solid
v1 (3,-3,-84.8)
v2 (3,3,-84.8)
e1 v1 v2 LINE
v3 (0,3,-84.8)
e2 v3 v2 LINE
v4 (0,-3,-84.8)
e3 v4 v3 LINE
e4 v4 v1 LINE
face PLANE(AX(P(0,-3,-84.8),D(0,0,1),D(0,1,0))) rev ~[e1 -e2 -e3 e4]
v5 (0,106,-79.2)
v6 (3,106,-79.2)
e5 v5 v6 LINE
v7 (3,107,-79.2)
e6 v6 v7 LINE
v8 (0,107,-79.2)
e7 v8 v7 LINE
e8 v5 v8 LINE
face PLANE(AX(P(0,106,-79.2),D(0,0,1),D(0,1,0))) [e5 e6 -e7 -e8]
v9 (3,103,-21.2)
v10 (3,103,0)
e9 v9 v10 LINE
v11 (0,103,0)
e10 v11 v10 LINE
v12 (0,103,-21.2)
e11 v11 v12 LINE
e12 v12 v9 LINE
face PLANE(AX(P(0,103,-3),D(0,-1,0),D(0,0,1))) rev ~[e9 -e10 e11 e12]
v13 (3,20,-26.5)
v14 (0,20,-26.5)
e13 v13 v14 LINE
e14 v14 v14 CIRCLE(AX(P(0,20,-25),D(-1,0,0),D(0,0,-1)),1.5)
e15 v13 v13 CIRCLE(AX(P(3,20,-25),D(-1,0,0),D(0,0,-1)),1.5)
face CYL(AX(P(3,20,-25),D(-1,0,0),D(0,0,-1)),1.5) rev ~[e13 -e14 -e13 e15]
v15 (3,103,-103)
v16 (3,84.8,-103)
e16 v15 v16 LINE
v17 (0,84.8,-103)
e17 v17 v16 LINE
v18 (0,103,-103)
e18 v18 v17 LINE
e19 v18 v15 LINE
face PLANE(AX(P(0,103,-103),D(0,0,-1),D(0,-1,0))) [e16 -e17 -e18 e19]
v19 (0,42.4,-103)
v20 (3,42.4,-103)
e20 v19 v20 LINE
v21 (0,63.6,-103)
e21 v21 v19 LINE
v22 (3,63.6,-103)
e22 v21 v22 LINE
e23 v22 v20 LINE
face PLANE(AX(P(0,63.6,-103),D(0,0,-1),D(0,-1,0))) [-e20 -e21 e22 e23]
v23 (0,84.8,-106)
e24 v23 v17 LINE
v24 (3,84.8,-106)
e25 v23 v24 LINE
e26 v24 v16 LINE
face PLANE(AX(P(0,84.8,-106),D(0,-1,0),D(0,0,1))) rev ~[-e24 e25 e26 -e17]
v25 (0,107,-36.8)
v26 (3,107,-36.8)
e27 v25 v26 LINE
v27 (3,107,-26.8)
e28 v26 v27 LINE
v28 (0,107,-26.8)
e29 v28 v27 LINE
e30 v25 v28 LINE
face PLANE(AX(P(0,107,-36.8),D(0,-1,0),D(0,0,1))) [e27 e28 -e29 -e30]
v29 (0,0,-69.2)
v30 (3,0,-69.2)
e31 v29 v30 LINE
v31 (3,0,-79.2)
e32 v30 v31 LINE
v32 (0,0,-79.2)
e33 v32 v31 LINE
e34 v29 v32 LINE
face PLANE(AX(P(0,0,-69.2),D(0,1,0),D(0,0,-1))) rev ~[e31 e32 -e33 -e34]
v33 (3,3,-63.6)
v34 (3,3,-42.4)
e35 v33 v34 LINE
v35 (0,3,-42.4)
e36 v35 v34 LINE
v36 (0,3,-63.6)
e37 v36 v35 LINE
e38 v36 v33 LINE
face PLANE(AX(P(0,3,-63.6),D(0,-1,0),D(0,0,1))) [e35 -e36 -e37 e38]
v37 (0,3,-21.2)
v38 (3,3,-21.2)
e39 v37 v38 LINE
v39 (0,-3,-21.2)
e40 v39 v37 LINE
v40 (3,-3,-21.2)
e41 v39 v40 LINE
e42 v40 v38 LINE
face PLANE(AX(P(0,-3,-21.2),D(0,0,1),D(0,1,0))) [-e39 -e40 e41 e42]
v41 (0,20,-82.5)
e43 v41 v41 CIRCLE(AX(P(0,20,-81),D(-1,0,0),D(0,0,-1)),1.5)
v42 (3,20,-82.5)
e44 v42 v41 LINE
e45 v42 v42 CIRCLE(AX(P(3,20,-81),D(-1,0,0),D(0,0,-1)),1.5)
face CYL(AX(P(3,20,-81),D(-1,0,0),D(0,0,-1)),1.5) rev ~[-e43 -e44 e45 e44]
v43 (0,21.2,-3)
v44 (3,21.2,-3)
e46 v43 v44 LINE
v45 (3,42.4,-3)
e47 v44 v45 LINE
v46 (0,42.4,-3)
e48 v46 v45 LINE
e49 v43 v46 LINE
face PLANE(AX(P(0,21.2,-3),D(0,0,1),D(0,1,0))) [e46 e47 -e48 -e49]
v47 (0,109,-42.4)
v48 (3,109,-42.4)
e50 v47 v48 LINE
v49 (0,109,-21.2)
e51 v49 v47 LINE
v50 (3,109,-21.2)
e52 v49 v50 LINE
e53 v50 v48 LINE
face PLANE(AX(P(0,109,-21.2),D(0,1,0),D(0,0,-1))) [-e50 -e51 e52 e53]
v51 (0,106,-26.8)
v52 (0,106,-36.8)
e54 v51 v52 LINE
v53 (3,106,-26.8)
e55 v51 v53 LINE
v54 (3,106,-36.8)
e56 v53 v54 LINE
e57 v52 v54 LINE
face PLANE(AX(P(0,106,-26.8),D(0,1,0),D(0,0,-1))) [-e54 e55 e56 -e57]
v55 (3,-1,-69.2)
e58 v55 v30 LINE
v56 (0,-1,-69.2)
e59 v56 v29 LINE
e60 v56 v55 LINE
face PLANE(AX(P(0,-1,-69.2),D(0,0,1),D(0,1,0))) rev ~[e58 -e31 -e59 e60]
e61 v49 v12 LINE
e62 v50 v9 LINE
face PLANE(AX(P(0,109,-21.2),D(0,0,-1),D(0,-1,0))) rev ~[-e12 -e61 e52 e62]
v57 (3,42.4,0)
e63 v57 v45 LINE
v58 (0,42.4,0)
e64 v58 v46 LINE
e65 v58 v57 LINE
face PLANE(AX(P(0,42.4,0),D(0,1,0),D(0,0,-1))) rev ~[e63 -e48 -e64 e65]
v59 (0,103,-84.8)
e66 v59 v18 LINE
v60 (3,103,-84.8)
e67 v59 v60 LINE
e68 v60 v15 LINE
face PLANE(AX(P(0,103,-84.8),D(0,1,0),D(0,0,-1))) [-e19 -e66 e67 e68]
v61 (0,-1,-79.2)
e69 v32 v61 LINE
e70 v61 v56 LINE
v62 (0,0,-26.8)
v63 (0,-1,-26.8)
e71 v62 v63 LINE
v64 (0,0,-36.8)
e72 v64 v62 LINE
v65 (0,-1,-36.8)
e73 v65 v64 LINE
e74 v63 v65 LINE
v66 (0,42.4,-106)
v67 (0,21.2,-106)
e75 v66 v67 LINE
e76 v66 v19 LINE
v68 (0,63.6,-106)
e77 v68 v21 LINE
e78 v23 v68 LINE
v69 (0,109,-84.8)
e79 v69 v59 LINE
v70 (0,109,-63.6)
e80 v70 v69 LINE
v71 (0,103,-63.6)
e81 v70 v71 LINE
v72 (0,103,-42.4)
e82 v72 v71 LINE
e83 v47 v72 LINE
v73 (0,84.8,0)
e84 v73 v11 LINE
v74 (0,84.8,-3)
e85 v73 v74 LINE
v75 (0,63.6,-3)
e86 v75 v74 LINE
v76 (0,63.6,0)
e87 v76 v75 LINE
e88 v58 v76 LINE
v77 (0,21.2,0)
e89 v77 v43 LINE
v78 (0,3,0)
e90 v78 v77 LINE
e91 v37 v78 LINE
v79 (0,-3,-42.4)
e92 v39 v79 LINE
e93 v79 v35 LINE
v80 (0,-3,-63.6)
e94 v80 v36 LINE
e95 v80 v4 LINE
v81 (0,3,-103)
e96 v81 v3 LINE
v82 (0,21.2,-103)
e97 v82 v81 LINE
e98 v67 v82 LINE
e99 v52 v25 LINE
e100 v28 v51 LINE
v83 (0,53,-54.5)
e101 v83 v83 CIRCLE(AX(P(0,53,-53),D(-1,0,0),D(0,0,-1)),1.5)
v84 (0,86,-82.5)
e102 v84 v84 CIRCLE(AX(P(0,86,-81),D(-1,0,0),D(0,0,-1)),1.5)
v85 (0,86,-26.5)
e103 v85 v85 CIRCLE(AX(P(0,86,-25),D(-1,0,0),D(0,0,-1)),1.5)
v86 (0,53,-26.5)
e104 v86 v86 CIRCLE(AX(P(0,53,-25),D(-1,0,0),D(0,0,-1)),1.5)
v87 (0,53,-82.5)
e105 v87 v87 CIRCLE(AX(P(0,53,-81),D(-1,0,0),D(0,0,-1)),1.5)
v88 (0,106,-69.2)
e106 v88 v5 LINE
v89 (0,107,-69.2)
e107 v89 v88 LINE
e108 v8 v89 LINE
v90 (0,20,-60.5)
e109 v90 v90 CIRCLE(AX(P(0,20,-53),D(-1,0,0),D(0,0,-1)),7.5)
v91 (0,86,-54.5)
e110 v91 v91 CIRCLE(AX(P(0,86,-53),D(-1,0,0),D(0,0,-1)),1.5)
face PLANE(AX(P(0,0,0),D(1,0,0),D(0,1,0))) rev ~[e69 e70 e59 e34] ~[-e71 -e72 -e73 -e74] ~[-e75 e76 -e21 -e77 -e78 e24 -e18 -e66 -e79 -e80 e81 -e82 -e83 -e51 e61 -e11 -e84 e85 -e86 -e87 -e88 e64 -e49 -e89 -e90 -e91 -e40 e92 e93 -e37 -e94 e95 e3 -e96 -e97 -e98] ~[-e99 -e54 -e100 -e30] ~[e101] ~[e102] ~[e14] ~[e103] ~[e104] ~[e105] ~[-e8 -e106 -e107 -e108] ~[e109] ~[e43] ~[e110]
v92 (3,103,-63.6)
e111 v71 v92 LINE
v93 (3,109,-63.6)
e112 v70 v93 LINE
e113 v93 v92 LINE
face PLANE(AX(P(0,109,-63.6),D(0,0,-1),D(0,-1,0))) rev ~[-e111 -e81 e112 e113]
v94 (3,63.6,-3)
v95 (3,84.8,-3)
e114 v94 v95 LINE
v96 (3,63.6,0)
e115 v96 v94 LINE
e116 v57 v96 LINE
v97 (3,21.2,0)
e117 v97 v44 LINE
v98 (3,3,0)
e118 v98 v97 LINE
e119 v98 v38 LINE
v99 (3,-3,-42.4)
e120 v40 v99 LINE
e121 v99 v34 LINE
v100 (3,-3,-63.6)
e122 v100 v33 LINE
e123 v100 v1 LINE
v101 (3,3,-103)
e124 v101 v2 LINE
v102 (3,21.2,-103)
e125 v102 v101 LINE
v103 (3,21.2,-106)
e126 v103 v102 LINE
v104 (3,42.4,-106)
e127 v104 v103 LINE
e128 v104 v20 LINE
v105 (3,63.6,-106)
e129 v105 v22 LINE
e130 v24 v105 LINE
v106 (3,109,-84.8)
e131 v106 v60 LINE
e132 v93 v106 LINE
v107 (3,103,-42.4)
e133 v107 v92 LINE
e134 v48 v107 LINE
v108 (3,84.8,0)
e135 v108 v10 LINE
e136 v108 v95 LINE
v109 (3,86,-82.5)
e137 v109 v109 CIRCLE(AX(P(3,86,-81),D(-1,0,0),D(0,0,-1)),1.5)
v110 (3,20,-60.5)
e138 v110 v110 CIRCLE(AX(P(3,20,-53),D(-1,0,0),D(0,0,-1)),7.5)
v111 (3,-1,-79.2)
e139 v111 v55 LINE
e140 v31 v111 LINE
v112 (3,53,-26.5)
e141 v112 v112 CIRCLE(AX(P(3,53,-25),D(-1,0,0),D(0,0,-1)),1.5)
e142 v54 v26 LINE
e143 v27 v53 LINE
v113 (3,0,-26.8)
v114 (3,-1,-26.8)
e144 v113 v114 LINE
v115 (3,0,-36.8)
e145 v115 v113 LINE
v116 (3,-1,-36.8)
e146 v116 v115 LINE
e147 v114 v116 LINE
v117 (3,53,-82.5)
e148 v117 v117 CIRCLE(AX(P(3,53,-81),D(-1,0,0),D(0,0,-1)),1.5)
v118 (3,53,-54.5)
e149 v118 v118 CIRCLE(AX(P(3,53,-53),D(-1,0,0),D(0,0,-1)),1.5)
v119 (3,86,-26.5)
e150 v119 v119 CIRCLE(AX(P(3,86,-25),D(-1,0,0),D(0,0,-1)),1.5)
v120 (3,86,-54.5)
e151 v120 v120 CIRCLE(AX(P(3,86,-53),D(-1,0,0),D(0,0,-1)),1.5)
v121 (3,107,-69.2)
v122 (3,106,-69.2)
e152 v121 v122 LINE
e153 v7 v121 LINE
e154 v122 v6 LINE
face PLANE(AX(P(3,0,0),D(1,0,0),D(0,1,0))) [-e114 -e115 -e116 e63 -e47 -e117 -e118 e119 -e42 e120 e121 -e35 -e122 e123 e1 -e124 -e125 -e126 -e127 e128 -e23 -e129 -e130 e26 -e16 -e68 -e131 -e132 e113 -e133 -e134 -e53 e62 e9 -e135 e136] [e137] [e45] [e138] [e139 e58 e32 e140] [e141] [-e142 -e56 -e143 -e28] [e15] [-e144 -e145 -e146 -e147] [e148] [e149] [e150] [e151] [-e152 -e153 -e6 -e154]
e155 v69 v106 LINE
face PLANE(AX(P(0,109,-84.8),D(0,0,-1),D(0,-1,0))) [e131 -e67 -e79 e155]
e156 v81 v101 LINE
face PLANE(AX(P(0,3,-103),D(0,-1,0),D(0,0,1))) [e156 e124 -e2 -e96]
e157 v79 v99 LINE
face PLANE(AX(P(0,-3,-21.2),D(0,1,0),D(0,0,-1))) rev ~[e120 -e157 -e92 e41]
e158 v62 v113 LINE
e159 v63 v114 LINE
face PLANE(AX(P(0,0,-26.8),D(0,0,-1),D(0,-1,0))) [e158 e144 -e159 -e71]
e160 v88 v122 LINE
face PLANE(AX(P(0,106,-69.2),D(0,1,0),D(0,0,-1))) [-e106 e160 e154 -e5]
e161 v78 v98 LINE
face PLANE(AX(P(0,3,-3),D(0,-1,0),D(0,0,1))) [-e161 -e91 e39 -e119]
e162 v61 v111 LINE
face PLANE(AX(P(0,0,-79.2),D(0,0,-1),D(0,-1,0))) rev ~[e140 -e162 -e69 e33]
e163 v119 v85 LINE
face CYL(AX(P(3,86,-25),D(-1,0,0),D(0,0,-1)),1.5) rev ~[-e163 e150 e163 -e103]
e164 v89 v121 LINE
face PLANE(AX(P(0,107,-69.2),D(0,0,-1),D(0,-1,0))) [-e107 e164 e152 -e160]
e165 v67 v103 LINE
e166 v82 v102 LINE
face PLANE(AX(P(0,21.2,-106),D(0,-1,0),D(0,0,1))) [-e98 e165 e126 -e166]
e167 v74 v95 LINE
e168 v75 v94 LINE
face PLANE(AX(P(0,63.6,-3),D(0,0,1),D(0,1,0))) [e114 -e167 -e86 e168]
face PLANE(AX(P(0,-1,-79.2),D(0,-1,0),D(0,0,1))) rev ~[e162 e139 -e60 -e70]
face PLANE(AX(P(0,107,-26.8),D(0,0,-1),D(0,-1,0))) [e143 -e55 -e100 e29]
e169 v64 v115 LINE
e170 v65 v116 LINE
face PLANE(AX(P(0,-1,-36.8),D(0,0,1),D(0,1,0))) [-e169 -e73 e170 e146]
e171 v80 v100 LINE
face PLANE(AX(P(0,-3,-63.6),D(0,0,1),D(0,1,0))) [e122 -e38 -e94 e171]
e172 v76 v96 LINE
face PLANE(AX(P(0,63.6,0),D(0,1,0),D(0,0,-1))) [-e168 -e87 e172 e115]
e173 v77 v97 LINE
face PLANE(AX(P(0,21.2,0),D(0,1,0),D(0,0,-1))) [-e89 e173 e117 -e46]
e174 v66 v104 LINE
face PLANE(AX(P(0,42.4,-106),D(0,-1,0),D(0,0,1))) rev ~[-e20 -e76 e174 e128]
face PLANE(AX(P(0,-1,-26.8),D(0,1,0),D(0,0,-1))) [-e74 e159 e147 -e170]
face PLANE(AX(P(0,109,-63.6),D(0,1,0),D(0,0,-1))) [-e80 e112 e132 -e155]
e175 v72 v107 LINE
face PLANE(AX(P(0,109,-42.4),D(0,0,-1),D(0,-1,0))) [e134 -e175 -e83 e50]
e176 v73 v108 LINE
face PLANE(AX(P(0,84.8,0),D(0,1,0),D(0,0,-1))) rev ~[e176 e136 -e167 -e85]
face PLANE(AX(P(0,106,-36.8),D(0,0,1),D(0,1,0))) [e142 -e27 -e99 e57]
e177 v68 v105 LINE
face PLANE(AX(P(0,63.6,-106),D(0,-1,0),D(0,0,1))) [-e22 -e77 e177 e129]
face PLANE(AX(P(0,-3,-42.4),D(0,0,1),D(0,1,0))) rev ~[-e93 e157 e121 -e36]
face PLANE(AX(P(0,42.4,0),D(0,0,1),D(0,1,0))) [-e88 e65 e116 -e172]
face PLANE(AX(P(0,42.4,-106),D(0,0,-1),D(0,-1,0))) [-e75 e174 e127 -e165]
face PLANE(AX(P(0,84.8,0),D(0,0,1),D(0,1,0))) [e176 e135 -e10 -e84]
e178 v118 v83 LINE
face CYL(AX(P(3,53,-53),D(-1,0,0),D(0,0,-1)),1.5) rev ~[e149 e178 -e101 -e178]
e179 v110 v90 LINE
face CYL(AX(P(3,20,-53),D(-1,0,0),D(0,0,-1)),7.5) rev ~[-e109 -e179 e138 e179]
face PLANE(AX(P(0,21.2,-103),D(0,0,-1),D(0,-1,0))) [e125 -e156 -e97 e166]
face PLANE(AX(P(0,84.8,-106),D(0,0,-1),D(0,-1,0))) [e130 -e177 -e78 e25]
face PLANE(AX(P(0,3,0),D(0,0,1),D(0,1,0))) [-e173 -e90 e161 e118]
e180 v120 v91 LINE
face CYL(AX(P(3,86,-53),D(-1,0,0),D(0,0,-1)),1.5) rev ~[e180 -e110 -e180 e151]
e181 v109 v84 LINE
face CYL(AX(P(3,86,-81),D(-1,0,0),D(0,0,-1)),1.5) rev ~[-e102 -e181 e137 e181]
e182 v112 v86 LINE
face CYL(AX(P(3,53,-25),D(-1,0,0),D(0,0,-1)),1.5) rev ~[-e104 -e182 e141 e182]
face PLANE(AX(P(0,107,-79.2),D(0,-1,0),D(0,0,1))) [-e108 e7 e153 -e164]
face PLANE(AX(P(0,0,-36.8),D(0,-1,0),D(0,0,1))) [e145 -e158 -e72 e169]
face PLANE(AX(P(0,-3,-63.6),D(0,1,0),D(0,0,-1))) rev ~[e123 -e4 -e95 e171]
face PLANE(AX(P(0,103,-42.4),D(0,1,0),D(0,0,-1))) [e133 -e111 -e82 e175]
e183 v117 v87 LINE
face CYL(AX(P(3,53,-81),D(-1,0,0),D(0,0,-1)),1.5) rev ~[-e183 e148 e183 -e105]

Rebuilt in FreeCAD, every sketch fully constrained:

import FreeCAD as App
import Part
import Sketcher
from FreeCAD import Vector

doc = App.newDocument("Part")
body = doc.addObject("PartDesign::Body", "Body")

# Sketch on YZ plane
sketch1 = doc.addObject("Sketcher::SketchObject", "Sketch")
body.addObject(sketch1)
sketch1.AttachmentSupport = (doc.YZ_Plane, [""])
sketch1.MapMode = "FlatFace"
sketch1.addGeometry(Part.LineSegment(Vector(21.2, -3, 0), Vector(21.2, 0, 0)), False)
sketch1.addGeometry(Part.LineSegment(Vector(21.2, 0, 0), Vector(3, 0, 0)), False)
sketch1.addGeometry(Part.LineSegment(Vector(3, 0, 0), Vector(3, -21.2, 0)), False)
sketch1.addGeometry(Part.LineSegment(Vector(3, -21.2, 0), Vector(-3, -21.2, 0)), False)
sketch1.addGeometry(Part.LineSegment(Vector(-3, -21.2, 0), Vector(-3, -42.4, 0)), False)
sketch1.addGeometry(Part.LineSegment(Vector(-3, -42.4, 0), Vector(3, -42.4, 0)), False)
sketch1.addGeometry(Part.LineSegment(Vector(3, -42.4, 0), Vector(3, -63.6, 0)), False)
sketch1.addGeometry(Part.LineSegment(Vector(3, -63.6, 0), Vector(-3, -63.6, 0)), False)
sketch1.addGeometry(Part.LineSegment(Vector(-3, -63.6, 0), Vector(-3, -84.8, 0)), False)
sketch1.addGeometry(Part.LineSegment(Vector(-3, -84.8, 0), Vector(3, -84.8, 0)), False)
sketch1.addGeometry(Part.LineSegment(Vector(3, -84.8, 0), Vector(3, -103, 0)), False)
sketch1.addGeometry(Part.LineSegment(Vector(3, -103, 0), Vector(21.2, -103, 0)), False)
sketch1.addGeometry(Part.LineSegment(Vector(21.2, -103, 0), Vector(21.2, -106, 0)), False)
sketch1.addGeometry(Part.LineSegment(Vector(21.2, -106, 0), Vector(42.4, -106, 0)), False)
sketch1.addGeometry(Part.LineSegment(Vector(42.4, -106, 0), Vector(42.4, -103, 0)), False)
sketch1.addGeometry(Part.LineSegment(Vector(42.4, -103, 0), Vector(63.6, -103, 0)), False)
sketch1.addGeometry(Part.LineSegment(Vector(63.6, -103, 0), Vector(63.6, -106, 0)), False)
sketch1.addGeometry(Part.LineSegment(Vector(63.6, -106, 0), Vector(84.8, -106, 0)), False)
sketch1.addGeometry(Part.LineSegment(Vector(84.8, -106, 0), Vector(84.8, -103, 0)), False)
sketch1.addGeometry(Part.LineSegment(Vector(84.8, -103, 0), Vector(103, -103, 0)), False)
sketch1.addGeometry(Part.LineSegment(Vector(103, -103, 0), Vector(103, -84.8, 0)), False)
sketch1.addGeometry(Part.LineSegment(Vector(103, -84.8, 0), Vector(109, -84.8, 0)), False)
sketch1.addGeometry(Part.LineSegment(Vector(109, -84.8, 0), Vector(109, -63.6, 0)), False)
sketch1.addGeometry(Part.LineSegment(Vector(109, -63.6, 0), Vector(103, -63.6, 0)), False)
sketch1.addGeometry(Part.LineSegment(Vector(103, -63.6, 0), Vector(103, -42.4, 0)), False)
sketch1.addGeometry(Part.LineSegment(Vector(103, -42.4, 0), Vector(109, -42.4, 0)), False)
sketch1.addGeometry(Part.LineSegment(Vector(109, -42.4, 0), Vector(109, -21.2, 0)), False)
sketch1.addGeometry(Part.LineSegment(Vector(109, -21.2, 0), Vector(103, -21.2, 0)), False)
sketch1.addGeometry(Part.LineSegment(Vector(103, -21.2, 0), Vector(103, 0, 0)), False)
sketch1.addGeometry(Part.LineSegment(Vector(103, 0, 0), Vector(84.8, 0, 0)), False)
sketch1.addGeometry(Part.LineSegment(Vector(84.8, 0, 0), Vector(84.8, -3, 0)), False)
sketch1.addGeometry(Part.LineSegment(Vector(84.8, -3, 0), Vector(63.6, -3, 0)), False)
sketch1.addGeometry(Part.LineSegment(Vector(63.6, -3, 0), Vector(63.6, 0, 0)), False)
sketch1.addGeometry(Part.LineSegment(Vector(63.6, 0, 0), Vector(42.4, 0, 0)), False)
sketch1.addGeometry(Part.LineSegment(Vector(42.4, 0, 0), Vector(42.4, -3, 0)), False)
sketch1.addGeometry(Part.LineSegment(Vector(42.4, -3, 0), Vector(21.2, -3, 0)), False)
sketch1.addGeometry(Part.LineSegment(Vector(-1, -79.2, 0), Vector(-1, -69.2, 0)), False)
sketch1.addGeometry(Part.LineSegment(Vector(-1, -69.2, 0), Vector(0, -69.2, 0)), False)
sketch1.addGeometry(Part.LineSegment(Vector(0, -69.2, 0), Vector(0, -79.2, 0)), False)
sketch1.addGeometry(Part.LineSegment(Vector(0, -79.2, 0), Vector(-1, -79.2, 0)), False)
sketch1.addGeometry(Part.LineSegment(Vector(106, -69.2, 0), Vector(107, -69.2, 0)), False)
sketch1.addGeometry(Part.LineSegment(Vector(107, -69.2, 0), Vector(107, -79.2, 0)), False)
sketch1.addGeometry(Part.LineSegment(Vector(107, -79.2, 0), Vector(106, -79.2, 0)), False)
sketch1.addGeometry(Part.LineSegment(Vector(106, -79.2, 0), Vector(106, -69.2, 0)), False)
sketch1.addGeometry(Part.LineSegment(Vector(-1, -26.8, 0), Vector(0, -26.8, 0)), False)
sketch1.addGeometry(Part.LineSegment(Vector(0, -26.8, 0), Vector(0, -36.8, 0)), False)
sketch1.addGeometry(Part.LineSegment(Vector(0, -36.8, 0), Vector(-1, -36.8, 0)), False)
sketch1.addGeometry(Part.LineSegment(Vector(-1, -36.8, 0), Vector(-1, -26.8, 0)), False)
sketch1.addGeometry(Part.LineSegment(Vector(106, -26.8, 0), Vector(107, -26.8, 0)), False)
sketch1.addGeometry(Part.LineSegment(Vector(107, -26.8, 0), Vector(107, -36.8, 0)), False)
sketch1.addGeometry(Part.LineSegment(Vector(107, -36.8, 0), Vector(106, -36.8, 0)), False)
sketch1.addGeometry(Part.LineSegment(Vector(106, -36.8, 0), Vector(106, -26.8, 0)), False)
sketch1.addConstraint(Sketcher.Constraint("Coincident", 0, 2, 1, 1))
sketch1.addConstraint(Sketcher.Constraint("Coincident", 1, 2, 2, 1))
sketch1.addConstraint(Sketcher.Constraint("Coincident", 2, 2, 3, 1))
sketch1.addConstraint(Sketcher.Constraint("Coincident", 3, 2, 4, 1))
sketch1.addConstraint(Sketcher.Constraint("Coincident", 4, 2, 5, 1))
sketch1.addConstraint(Sketcher.Constraint("Coincident", 5, 2, 6, 1))
sketch1.addConstraint(Sketcher.Constraint("Coincident", 6, 2, 7, 1))
sketch1.addConstraint(Sketcher.Constraint("Coincident", 7, 2, 8, 1))
sketch1.addConstraint(Sketcher.Constraint("Coincident", 8, 2, 9, 1))
sketch1.addConstraint(Sketcher.Constraint("Coincident", 9, 2, 10, 1))
sketch1.addConstraint(Sketcher.Constraint("Coincident", 10, 2, 11, 1))
sketch1.addConstraint(Sketcher.Constraint("Coincident", 11, 2, 12, 1))
sketch1.addConstraint(Sketcher.Constraint("Coincident", 12, 2, 13, 1))
sketch1.addConstraint(Sketcher.Constraint("Coincident", 13, 2, 14, 1))
sketch1.addConstraint(Sketcher.Constraint("Coincident", 14, 2, 15, 1))
sketch1.addConstraint(Sketcher.Constraint("Coincident", 15, 2, 16, 1))
sketch1.addConstraint(Sketcher.Constraint("Coincident", 16, 2, 17, 1))
sketch1.addConstraint(Sketcher.Constraint("Coincident", 17, 2, 18, 1))
sketch1.addConstraint(Sketcher.Constraint("Coincident", 18, 2, 19, 1))
sketch1.addConstraint(Sketcher.Constraint("Coincident", 19, 2, 20, 1))
sketch1.addConstraint(Sketcher.Constraint("Coincident", 20, 2, 21, 1))
sketch1.addConstraint(Sketcher.Constraint("Coincident", 21, 2, 22, 1))
sketch1.addConstraint(Sketcher.Constraint("Coincident", 22, 2, 23, 1))
sketch1.addConstraint(Sketcher.Constraint("Coincident", 23, 2, 24, 1))
sketch1.addConstraint(Sketcher.Constraint("Coincident", 24, 2, 25, 1))
sketch1.addConstraint(Sketcher.Constraint("Coincident", 25, 2, 26, 1))
sketch1.addConstraint(Sketcher.Constraint("Coincident", 26, 2, 27, 1))
sketch1.addConstraint(Sketcher.Constraint("Coincident", 27, 2, 28, 1))
sketch1.addConstraint(Sketcher.Constraint("Coincident", 28, 2, 29, 1))
sketch1.addConstraint(Sketcher.Constraint("Coincident", 29, 2, 30, 1))
sketch1.addConstraint(Sketcher.Constraint("Coincident", 30, 2, 31, 1))
sketch1.addConstraint(Sketcher.Constraint("Coincident", 31, 2, 32, 1))
sketch1.addConstraint(Sketcher.Constraint("Coincident", 32, 2, 33, 1))
sketch1.addConstraint(Sketcher.Constraint("Coincident", 33, 2, 34, 1))
sketch1.addConstraint(Sketcher.Constraint("Coincident", 34, 2, 35, 1))
sketch1.addConstraint(Sketcher.Constraint("Coincident", 35, 2, 0, 1))
sketch1.addConstraint(Sketcher.Constraint("Coincident", 36, 2, 37, 1))
sketch1.addConstraint(Sketcher.Constraint("Coincident", 37, 2, 38, 1))
sketch1.addConstraint(Sketcher.Constraint("Coincident", 38, 2, 39, 1))
sketch1.addConstraint(Sketcher.Constraint("Coincident", 39, 2, 36, 1))
sketch1.addConstraint(Sketcher.Constraint("Coincident", 40, 2, 41, 1))
sketch1.addConstraint(Sketcher.Constraint("Coincident", 41, 2, 42, 1))
sketch1.addConstraint(Sketcher.Constraint("Coincident", 42, 2, 43, 1))
sketch1.addConstraint(Sketcher.Constraint("Coincident", 43, 2, 40, 1))
sketch1.addConstraint(Sketcher.Constraint("Coincident", 44, 2, 45, 1))
sketch1.addConstraint(Sketcher.Constraint("Coincident", 45, 2, 46, 1))
sketch1.addConstraint(Sketcher.Constraint("Coincident", 46, 2, 47, 1))
sketch1.addConstraint(Sketcher.Constraint("Coincident", 47, 2, 44, 1))
sketch1.addConstraint(Sketcher.Constraint("Coincident", 48, 2, 49, 1))
sketch1.addConstraint(Sketcher.Constraint("Coincident", 49, 2, 50, 1))
sketch1.addConstraint(Sketcher.Constraint("Coincident", 50, 2, 51, 1))
sketch1.addConstraint(Sketcher.Constraint("Coincident", 51, 2, 48, 1))
sketch1.addConstraint(Sketcher.Constraint("Vertical", 0))
sketch1.addConstraint(Sketcher.Constraint("Horizontal", 1))
sketch1.addConstraint(Sketcher.Constraint("Vertical", 2))
sketch1.addConstraint(Sketcher.Constraint("Horizontal", 3))
sketch1.addConstraint(Sketcher.Constraint("Vertical", 4))
sketch1.addConstraint(Sketcher.Constraint("Horizontal", 5))
sketch1.addConstraint(Sketcher.Constraint("Vertical", 6))
sketch1.addConstraint(Sketcher.Constraint("Horizontal", 7))
sketch1.addConstraint(Sketcher.Constraint("Vertical", 8))
sketch1.addConstraint(Sketcher.Constraint("Horizontal", 9))
sketch1.addConstraint(Sketcher.Constraint("Vertical", 10))
sketch1.addConstraint(Sketcher.Constraint("Horizontal", 11))
sketch1.addConstraint(Sketcher.Constraint("Vertical", 12))
sketch1.addConstraint(Sketcher.Constraint("Horizontal", 13))
sketch1.addConstraint(Sketcher.Constraint("Vertical", 14))
sketch1.addConstraint(Sketcher.Constraint("Horizontal", 15))
sketch1.addConstraint(Sketcher.Constraint("Vertical", 16))
sketch1.addConstraint(Sketcher.Constraint("Horizontal", 17))
sketch1.addConstraint(Sketcher.Constraint("Vertical", 18))
sketch1.addConstraint(Sketcher.Constraint("Horizontal", 19))
sketch1.addConstraint(Sketcher.Constraint("Vertical", 20))
sketch1.addConstraint(Sketcher.Constraint("Horizontal", 21))
sketch1.addConstraint(Sketcher.Constraint("Vertical", 22))
sketch1.addConstraint(Sketcher.Constraint("Horizontal", 23))
sketch1.addConstraint(Sketcher.Constraint("Vertical", 24))
sketch1.addConstraint(Sketcher.Constraint("Horizontal", 25))
sketch1.addConstraint(Sketcher.Constraint("Vertical", 26))
sketch1.addConstraint(Sketcher.Constraint("Horizontal", 27))
sketch1.addConstraint(Sketcher.Constraint("Vertical", 28))
sketch1.addConstraint(Sketcher.Constraint("Horizontal", 29))
sketch1.addConstraint(Sketcher.Constraint("Vertical", 30))
sketch1.addConstraint(Sketcher.Constraint("Horizontal", 31))
sketch1.addConstraint(Sketcher.Constraint("Vertical", 32))
sketch1.addConstraint(Sketcher.Constraint("Horizontal", 33))
sketch1.addConstraint(Sketcher.Constraint("Vertical", 34))
sketch1.addConstraint(Sketcher.Constraint("Horizontal", 35))
sketch1.addConstraint(Sketcher.Constraint("Vertical", 36))
sketch1.addConstraint(Sketcher.Constraint("Horizontal", 37))
sketch1.addConstraint(Sketcher.Constraint("Vertical", 38))
sketch1.addConstraint(Sketcher.Constraint("Horizontal", 39))
sketch1.addConstraint(Sketcher.Constraint("Horizontal", 40))
sketch1.addConstraint(Sketcher.Constraint("Vertical", 41))
sketch1.addConstraint(Sketcher.Constraint("Horizontal", 42))
sketch1.addConstraint(Sketcher.Constraint("Vertical", 43))
sketch1.addConstraint(Sketcher.Constraint("Horizontal", 44))
sketch1.addConstraint(Sketcher.Constraint("Vertical", 45))
sketch1.addConstraint(Sketcher.Constraint("Horizontal", 46))
sketch1.addConstraint(Sketcher.Constraint("Vertical", 47))
sketch1.addConstraint(Sketcher.Constraint("Horizontal", 48))
sketch1.addConstraint(Sketcher.Constraint("Vertical", 49))
sketch1.addConstraint(Sketcher.Constraint("Horizontal", 50))
sketch1.addConstraint(Sketcher.Constraint("Vertical", 51))
sketch1.addConstraint(Sketcher.Constraint("PointOnObject", 0, 2, -1))
sketch1.addConstraint(Sketcher.Constraint("PointOnObject", 28, 2, -1))
sketch1.addConstraint(Sketcher.Constraint("PointOnObject", 32, 2, -1))
sketch1.addConstraint(Sketcher.Constraint("PointOnObject", 37, 2, -2))
sketch1.addConstraint(Sketcher.Constraint("PointOnObject", 44, 2, -2))
sketch1.addConstraint(Sketcher.Constraint("Horizontal", 11, 2, 14, 2))
sketch1.addConstraint(Sketcher.Constraint("Horizontal", 13, 2, 16, 2))
sketch1.addConstraint(Sketcher.Constraint("Horizontal", 15, 2, 18, 2))
sketch1.addConstraint(Sketcher.Constraint("Horizontal", 9, 2, 20, 2))
sketch1.addConstraint(Sketcher.Constraint("Horizontal", 7, 2, 22, 2))
sketch1.addConstraint(Sketcher.Constraint("Horizontal", 5, 2, 24, 2))
sketch1.addConstraint(Sketcher.Constraint("Horizontal", 3, 2, 26, 2))
sketch1.addConstraint(Sketcher.Constraint("Horizontal", 31, 2, 34, 2))
sketch1.addConstraint(Sketcher.Constraint("Horizontal", 37, 2, 40, 2))
sketch1.addConstraint(Sketcher.Constraint("Horizontal", 39, 2, 41, 2))
sketch1.addConstraint(Sketcher.Constraint("Horizontal", 47, 2, 48, 2))
sketch1.addConstraint(Sketcher.Constraint("Horizontal", 46, 2, 49, 2))
sketch1.addConstraint(Sketcher.Constraint("Vertical", 2, 2, 5, 2))
sketch1.addConstraint(Sketcher.Constraint("Vertical", 4, 2, 7, 2))
sketch1.addConstraint(Sketcher.Constraint("Vertical", 6, 2, 9, 2))
sketch1.addConstraint(Sketcher.Constraint("Vertical", 0, 2, 11, 2))
sketch1.addConstraint(Sketcher.Constraint("Vertical", 20, 2, 23, 2))
sketch1.addConstraint(Sketcher.Constraint("Vertical", 22, 2, 25, 2))
sketch1.addConstraint(Sketcher.Constraint("Vertical", 24, 2, 27, 2))
sketch1.addConstraint(Sketcher.Constraint("Vertical", 18, 2, 29, 2))
sketch1.addConstraint(Sketcher.Constraint("Vertical", 16, 2, 31, 2))
sketch1.addConstraint(Sketcher.Constraint("Vertical", 14, 2, 33, 2))
sketch1.addConstraint(Sketcher.Constraint("Vertical", 39, 2, 46, 2))
sketch1.addConstraint(Sketcher.Constraint("Vertical", 41, 2, 48, 2))
sketch1.addConstraint(Sketcher.Constraint("Vertical", 43, 2, 50, 2))
sketch1.addConstraint(Sketcher.Constraint("Equal", 13, 15))
sketch1.addConstraint(Sketcher.Constraint("Equal", 15, 17))
sketch1.addConstraint(Sketcher.Constraint("Equal", 11, 19))
sketch1.addConstraint(Sketcher.Constraint("Equal", 9, 21))
sketch1.addConstraint(Sketcher.Constraint("Equal", 39, 40))
sketch1.addConstraint(Sketcher.Constraint("Equal", 35, 2))
sketch1.addConstraint(Sketcher.Constraint("Equal", 2, 4))
sketch1.addConstraint(Sketcher.Constraint("Equal", 4, 6))
sketch1.addConstraint(Sketcher.Constraint("Equal", 6, 8))
sketch1.addConstraint(Sketcher.Constraint("Equal", 29, 10))
sketch1.addConstraint(Sketcher.Constraint("Equal", 0, 12))
sketch1.addConstraint(Sketcher.Constraint("Equal", 43, 45))
sketch1.addConstraint(Sketcher.Constraint("DistanceX", 37, 1, 37, 2, 1.0))
sketch1.addConstraint(Sketcher.Constraint("DistanceY", 36, 1, 36, 2, 10.0))
sketch1.addConstraint(Sketcher.Constraint("DistanceX", 3, 2, 3, 1, 6.0))
sketch1.addConstraint(Sketcher.Constraint("DistanceY", 0, 1, 0, 2, 3.0))
sketch1.addConstraint(Sketcher.Constraint("DistanceX", 1, 2, 1, 1, 18.2))
sketch1.addConstraint(Sketcher.Constraint("DistanceX", 13, 1, 13, 2, 21.2))
sketch1.addConstraint(Sketcher.Constraint("DistanceX", -1, 1, 1, 2, 3.0))
sketch1.addConstraint(Sketcher.Constraint("DistanceX", -1, 1, 40, 2, 107.0))
sketch1.addConstraint(Sketcher.Constraint("DistanceY", 36, 2, -1, 1, 69.2))
sketch1.addConstraint(Sketcher.Constraint("DistanceY", 44, 2, -1, 1, 26.8))
pad1 = doc.addObject("PartDesign::Pad", "Pad")
body.addObject(pad1)
pad1.Profile = sketch1
pad1.Length = 3

# Sketch on YZ plane
sketch2 = doc.addObject("Sketcher::SketchObject", "Sketch001")
body.addObject(sketch2)
sketch2.AttachmentSupport = (doc.YZ_Plane, [""])
sketch2.MapMode = "FlatFace"
sketch2.AttachmentOffset = App.Placement(Vector(0, 0, 3), App.Rotation())
sketch2.addGeometry(Part.Circle(Vector(20, -25, 0), Vector(0, 0, 1), 1.5), False)
sketch2.addConstraint(Sketcher.Constraint("Diameter", 0, 3.0))
sketch2.addConstraint(Sketcher.Constraint("DistanceX", -1, 1, 0, 3, 20.0))
sketch2.addConstraint(Sketcher.Constraint("DistanceY", 0, 3, -1, 1, 25.0))
doc.recompute()
hole = doc.addObject("PartDesign::Hole", "Hole")
body.addObject(hole)
hole.Profile = sketch2
hole.ThreadType = "None"
hole.Diameter = 3
hole.DepthType = "ThroughAll"

# Sketch on YZ plane
sketch3 = doc.addObject("Sketcher::SketchObject", "Sketch002")
body.addObject(sketch3)
sketch3.AttachmentSupport = (doc.YZ_Plane, [""])
sketch3.MapMode = "FlatFace"
sketch3.AttachmentOffset = App.Placement(Vector(0, 0, 3), App.Rotation())
sketch3.addGeometry(Part.Circle(Vector(53, -25, 0), Vector(0, 0, 1), 1.5), False)
sketch3.addConstraint(Sketcher.Constraint("Diameter", 0, 3.0))
sketch3.addConstraint(Sketcher.Constraint("DistanceX", -1, 1, 0, 3, 53.0))
sketch3.addConstraint(Sketcher.Constraint("DistanceY", 0, 3, -1, 1, 25.0))
doc.recompute()
hole2 = doc.addObject("PartDesign::Hole", "Hole001")
body.addObject(hole2)
hole2.Profile = sketch3
hole2.ThreadType = "None"
hole2.Diameter = 3
hole2.DepthType = "ThroughAll"

# Sketch on YZ plane
sketch4 = doc.addObject("Sketcher::SketchObject", "Sketch003")
body.addObject(sketch4)
sketch4.AttachmentSupport = (doc.YZ_Plane, [""])
sketch4.MapMode = "FlatFace"
sketch4.AttachmentOffset = App.Placement(Vector(0, 0, 3), App.Rotation())
sketch4.addGeometry(Part.Circle(Vector(86, -25, 0), Vector(0, 0, 1), 1.5), False)
sketch4.addConstraint(Sketcher.Constraint("Diameter", 0, 3.0))
sketch4.addConstraint(Sketcher.Constraint("DistanceX", -1, 1, 0, 3, 86.0))
sketch4.addConstraint(Sketcher.Constraint("DistanceY", 0, 3, -1, 1, 25.0))
doc.recompute()
hole3 = doc.addObject("PartDesign::Hole", "Hole002")
body.addObject(hole3)
hole3.Profile = sketch4
hole3.ThreadType = "None"
hole3.Diameter = 3
hole3.DepthType = "ThroughAll"

# Sketch on YZ plane
sketch5 = doc.addObject("Sketcher::SketchObject", "Sketch004")
body.addObject(sketch5)
sketch5.AttachmentSupport = (doc.YZ_Plane, [""])
sketch5.MapMode = "FlatFace"
sketch5.AttachmentOffset = App.Placement(Vector(0, 0, 3), App.Rotation())
sketch5.addGeometry(Part.Circle(Vector(20, -53, 0), Vector(0, 0, 1), 7.5), False)
sketch5.addConstraint(Sketcher.Constraint("Diameter", 0, 15.0))
sketch5.addConstraint(Sketcher.Constraint("DistanceX", -1, 1, 0, 3, 20.0))
sketch5.addConstraint(Sketcher.Constraint("DistanceY", 0, 3, -1, 1, 53.0))
doc.recompute()
hole4 = doc.addObject("PartDesign::Hole", "Hole003")
body.addObject(hole4)
hole4.Profile = sketch5
hole4.ThreadType = "None"
hole4.Diameter = 15
hole4.DepthType = "ThroughAll"

# Sketch on YZ plane
sketch6 = doc.addObject("Sketcher::SketchObject", "Sketch005")
body.addObject(sketch6)
sketch6.AttachmentSupport = (doc.YZ_Plane, [""])
sketch6.MapMode = "FlatFace"
sketch6.AttachmentOffset = App.Placement(Vector(0, 0, 3), App.Rotation())
sketch6.addGeometry(Part.Circle(Vector(53, -53, 0), Vector(0, 0, 1), 1.5), False)
sketch6.addConstraint(Sketcher.Constraint("Diameter", 0, 3.0))
sketch6.addConstraint(Sketcher.Constraint("DistanceX", -1, 1, 0, 3, 53.0))
sketch6.addConstraint(Sketcher.Constraint("DistanceY", 0, 3, -1, 1, 53.0))
doc.recompute()
hole5 = doc.addObject("PartDesign::Hole", "Hole004")
body.addObject(hole5)
hole5.Profile = sketch6
hole5.ThreadType = "None"
hole5.Diameter = 3
hole5.DepthType = "ThroughAll"

# Sketch on YZ plane
sketch7 = doc.addObject("Sketcher::SketchObject", "Sketch006")
body.addObject(sketch7)
sketch7.AttachmentSupport = (doc.YZ_Plane, [""])
sketch7.MapMode = "FlatFace"
sketch7.AttachmentOffset = App.Placement(Vector(0, 0, 3), App.Rotation())
sketch7.addGeometry(Part.Circle(Vector(86, -53, 0), Vector(0, 0, 1), 1.5), False)
sketch7.addConstraint(Sketcher.Constraint("Diameter", 0, 3.0))
sketch7.addConstraint(Sketcher.Constraint("DistanceX", -1, 1, 0, 3, 86.0))
sketch7.addConstraint(Sketcher.Constraint("DistanceY", 0, 3, -1, 1, 53.0))
doc.recompute()
hole6 = doc.addObject("PartDesign::Hole", "Hole005")
body.addObject(hole6)
hole6.Profile = sketch7
hole6.ThreadType = "None"
hole6.Diameter = 3
hole6.DepthType = "ThroughAll"

# Sketch on YZ plane
sketch8 = doc.addObject("Sketcher::SketchObject", "Sketch007")
body.addObject(sketch8)
sketch8.AttachmentSupport = (doc.YZ_Plane, [""])
sketch8.MapMode = "FlatFace"
sketch8.AttachmentOffset = App.Placement(Vector(0, 0, 3), App.Rotation())
sketch8.addGeometry(Part.Circle(Vector(20, -81, 0), Vector(0, 0, 1), 1.5), False)
sketch8.addConstraint(Sketcher.Constraint("Diameter", 0, 3.0))
sketch8.addConstraint(Sketcher.Constraint("DistanceX", -1, 1, 0, 3, 20.0))
sketch8.addConstraint(Sketcher.Constraint("DistanceY", 0, 3, -1, 1, 81.0))
doc.recompute()
hole7 = doc.addObject("PartDesign::Hole", "Hole006")
body.addObject(hole7)
hole7.Profile = sketch8
hole7.ThreadType = "None"
hole7.Diameter = 3
hole7.DepthType = "ThroughAll"

# Sketch on YZ plane
sketch9 = doc.addObject("Sketcher::SketchObject", "Sketch008")
body.addObject(sketch9)
sketch9.AttachmentSupport = (doc.YZ_Plane, [""])
sketch9.MapMode = "FlatFace"
sketch9.AttachmentOffset = App.Placement(Vector(0, 0, 3), App.Rotation())
sketch9.addGeometry(Part.Circle(Vector(53, -81, 0), Vector(0, 0, 1), 1.5), False)
sketch9.addConstraint(Sketcher.Constraint("Diameter", 0, 3.0))
sketch9.addConstraint(Sketcher.Constraint("DistanceX", -1, 1, 0, 3, 53.0))
sketch9.addConstraint(Sketcher.Constraint("DistanceY", 0, 3, -1, 1, 81.0))
doc.recompute()
hole8 = doc.addObject("PartDesign::Hole", "Hole007")
body.addObject(hole8)
hole8.Profile = sketch9
hole8.ThreadType = "None"
hole8.Diameter = 3
hole8.DepthType = "ThroughAll"

# Sketch on YZ plane
sketch10 = doc.addObject("Sketcher::SketchObject", "Sketch009")
body.addObject(sketch10)
sketch10.AttachmentSupport = (doc.YZ_Plane, [""])
sketch10.MapMode = "FlatFace"
sketch10.AttachmentOffset = App.Placement(Vector(0, 0, 3), App.Rotation())
sketch10.addGeometry(Part.Circle(Vector(86, -81, 0), Vector(0, 0, 1), 1.5), False)
sketch10.addConstraint(Sketcher.Constraint("Diameter", 0, 3.0))
sketch10.addConstraint(Sketcher.Constraint("DistanceX", -1, 1, 0, 3, 86.0))
sketch10.addConstraint(Sketcher.Constraint("DistanceY", 0, 3, -1, 1, 81.0))
doc.recompute()
hole9 = doc.addObject("PartDesign::Hole", "Hole008")
body.addObject(hole9)
hole9.Profile = sketch10
hole9.ThreadType = "None"
hole9.Diameter = 3
hole9.DepthType = "ThroughAll"

doc.recompute()
